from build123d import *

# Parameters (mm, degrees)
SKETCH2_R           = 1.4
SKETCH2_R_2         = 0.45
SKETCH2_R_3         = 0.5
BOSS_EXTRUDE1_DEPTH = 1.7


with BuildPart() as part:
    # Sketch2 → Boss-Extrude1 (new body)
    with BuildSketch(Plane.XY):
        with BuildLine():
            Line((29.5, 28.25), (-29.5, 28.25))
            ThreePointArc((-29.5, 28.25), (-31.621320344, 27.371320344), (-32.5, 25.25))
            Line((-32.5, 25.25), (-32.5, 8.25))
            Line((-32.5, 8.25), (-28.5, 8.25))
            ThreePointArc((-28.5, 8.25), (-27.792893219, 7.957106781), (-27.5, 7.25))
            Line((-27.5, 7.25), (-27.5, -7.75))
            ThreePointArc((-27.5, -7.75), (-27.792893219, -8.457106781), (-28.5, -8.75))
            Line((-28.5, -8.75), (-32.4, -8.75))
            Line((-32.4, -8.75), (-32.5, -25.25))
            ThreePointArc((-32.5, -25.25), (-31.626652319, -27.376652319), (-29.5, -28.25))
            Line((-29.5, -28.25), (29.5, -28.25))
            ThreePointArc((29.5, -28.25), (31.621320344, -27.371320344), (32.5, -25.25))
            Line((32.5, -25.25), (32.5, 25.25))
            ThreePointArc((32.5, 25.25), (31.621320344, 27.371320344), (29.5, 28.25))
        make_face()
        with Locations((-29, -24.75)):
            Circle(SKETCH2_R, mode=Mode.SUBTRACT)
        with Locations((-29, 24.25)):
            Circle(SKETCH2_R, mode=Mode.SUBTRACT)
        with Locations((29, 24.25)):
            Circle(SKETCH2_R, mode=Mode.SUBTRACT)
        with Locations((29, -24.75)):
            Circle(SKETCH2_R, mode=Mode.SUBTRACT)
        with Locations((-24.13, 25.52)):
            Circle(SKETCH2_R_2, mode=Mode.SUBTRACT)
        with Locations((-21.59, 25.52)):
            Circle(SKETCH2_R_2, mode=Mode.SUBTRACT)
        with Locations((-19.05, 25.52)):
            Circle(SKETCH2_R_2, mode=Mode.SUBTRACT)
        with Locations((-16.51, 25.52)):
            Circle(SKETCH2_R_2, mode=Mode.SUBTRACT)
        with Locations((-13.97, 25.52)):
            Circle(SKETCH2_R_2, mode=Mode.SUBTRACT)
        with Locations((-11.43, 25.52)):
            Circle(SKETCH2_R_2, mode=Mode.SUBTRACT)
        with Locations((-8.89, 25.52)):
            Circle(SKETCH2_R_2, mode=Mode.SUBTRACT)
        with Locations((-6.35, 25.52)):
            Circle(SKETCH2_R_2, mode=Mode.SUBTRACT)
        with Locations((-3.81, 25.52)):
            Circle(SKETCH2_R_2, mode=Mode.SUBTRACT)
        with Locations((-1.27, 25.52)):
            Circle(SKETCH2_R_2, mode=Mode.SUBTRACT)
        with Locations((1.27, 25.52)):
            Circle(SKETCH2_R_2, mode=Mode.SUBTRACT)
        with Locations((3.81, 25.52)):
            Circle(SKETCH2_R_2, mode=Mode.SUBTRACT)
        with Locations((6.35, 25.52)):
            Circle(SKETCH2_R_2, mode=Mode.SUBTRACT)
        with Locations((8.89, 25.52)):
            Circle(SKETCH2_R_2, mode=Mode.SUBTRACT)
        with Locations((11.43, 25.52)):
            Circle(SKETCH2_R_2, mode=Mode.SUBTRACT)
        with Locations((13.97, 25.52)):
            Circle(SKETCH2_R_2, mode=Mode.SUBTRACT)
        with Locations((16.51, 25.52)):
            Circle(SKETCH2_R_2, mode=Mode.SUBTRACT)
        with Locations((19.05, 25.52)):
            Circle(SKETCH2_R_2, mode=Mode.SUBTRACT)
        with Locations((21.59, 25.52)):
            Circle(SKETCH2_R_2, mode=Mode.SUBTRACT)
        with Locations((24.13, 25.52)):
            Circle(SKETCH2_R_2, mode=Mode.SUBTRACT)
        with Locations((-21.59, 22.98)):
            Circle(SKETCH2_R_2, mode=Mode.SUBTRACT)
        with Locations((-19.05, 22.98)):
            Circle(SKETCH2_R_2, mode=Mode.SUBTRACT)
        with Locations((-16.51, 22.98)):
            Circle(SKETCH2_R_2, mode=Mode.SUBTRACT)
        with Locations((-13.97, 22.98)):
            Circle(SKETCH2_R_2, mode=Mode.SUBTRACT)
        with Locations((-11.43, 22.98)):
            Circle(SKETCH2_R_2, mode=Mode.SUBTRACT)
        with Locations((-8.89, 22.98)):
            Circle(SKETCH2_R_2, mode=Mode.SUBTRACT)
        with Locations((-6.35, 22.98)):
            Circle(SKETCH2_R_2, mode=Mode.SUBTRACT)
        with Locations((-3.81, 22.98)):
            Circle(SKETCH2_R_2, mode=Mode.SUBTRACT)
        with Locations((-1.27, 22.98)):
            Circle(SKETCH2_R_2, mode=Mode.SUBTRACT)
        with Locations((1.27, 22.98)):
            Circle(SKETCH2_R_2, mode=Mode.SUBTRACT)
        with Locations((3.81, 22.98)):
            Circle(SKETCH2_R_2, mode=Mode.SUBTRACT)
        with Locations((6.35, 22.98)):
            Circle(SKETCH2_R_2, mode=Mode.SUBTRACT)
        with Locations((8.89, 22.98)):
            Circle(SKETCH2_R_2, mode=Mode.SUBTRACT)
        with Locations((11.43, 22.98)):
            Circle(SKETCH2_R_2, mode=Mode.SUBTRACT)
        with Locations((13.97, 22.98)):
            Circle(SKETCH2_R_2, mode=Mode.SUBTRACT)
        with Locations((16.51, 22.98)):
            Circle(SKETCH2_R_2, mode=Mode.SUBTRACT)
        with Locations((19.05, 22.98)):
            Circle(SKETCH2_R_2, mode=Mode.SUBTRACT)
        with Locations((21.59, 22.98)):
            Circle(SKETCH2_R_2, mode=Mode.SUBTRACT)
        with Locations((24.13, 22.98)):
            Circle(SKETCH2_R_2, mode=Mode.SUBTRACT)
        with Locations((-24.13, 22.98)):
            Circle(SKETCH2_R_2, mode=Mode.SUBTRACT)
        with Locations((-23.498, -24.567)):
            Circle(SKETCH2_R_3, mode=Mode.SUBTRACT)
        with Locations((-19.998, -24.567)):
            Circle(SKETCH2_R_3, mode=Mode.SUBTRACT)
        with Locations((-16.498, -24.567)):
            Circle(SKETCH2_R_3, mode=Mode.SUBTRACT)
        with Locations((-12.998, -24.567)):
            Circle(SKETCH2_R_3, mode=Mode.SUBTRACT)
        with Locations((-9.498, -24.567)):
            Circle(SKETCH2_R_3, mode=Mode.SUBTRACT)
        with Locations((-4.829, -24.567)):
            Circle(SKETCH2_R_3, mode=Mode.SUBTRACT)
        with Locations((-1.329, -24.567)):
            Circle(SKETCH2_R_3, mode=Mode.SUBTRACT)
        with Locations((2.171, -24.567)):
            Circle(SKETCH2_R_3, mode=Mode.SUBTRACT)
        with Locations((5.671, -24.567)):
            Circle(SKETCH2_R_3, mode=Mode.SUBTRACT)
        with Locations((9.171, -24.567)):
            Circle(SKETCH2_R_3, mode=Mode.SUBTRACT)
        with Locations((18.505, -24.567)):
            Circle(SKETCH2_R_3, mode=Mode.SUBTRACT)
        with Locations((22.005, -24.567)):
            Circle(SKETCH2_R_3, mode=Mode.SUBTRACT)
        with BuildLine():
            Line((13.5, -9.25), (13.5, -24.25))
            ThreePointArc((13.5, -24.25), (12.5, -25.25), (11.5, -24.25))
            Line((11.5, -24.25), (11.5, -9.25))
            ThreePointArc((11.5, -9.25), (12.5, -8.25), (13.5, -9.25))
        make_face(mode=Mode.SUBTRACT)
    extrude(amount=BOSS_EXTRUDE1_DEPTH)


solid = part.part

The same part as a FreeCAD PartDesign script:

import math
import FreeCAD as App
import Part
import Sketcher
from FreeCAD import Vector
Q = App.Units.Quantity

doc = App.newDocument("Part")
body = doc.addObject("PartDesign::Body", "Body")

sketch1 = doc.addObject("Sketcher::SketchObject", "Sketch")
body.addObject(sketch1)
sketch1.AttachmentSupport = (doc.XY_Plane, [""])
sketch1.MapMode = "FlatFace"
sketch1.addGeometry([
    Part.LineSegment(Vector(29.5, 28.25, 0), Vector(-29.5, 28.25, 0)),
    Part.ArcOfCircle(Part.Circle(Vector(-29.5, 25.25, 0), Vector(0, 0, 1), 3), math.radians(90), math.radians(180)),
    Part.LineSegment(Vector(-32.5, 25.25, 0), Vector(-32.5, 8.25, 0)),
    Part.LineSegment(Vector(-32.5, 8.25, 0), Vector(-28.5, 8.25, 0)),
    Part.ArcOfCircle(Part.Circle(Vector(-28.5, 7.25, 0), Vector(0, 0, 1), 1), math.radians(0), math.radians(90)),
    Part.LineSegment(Vector(-27.5, 7.25, 0), Vector(-27.5, -7.75, 0)),
    Part.ArcOfCircle(Part.Circle(Vector(-28.5, -7.75, 0), Vector(0, 0, 1), 1), math.radians(-90), math.radians(0)),
    Part.LineSegment(Vector(-28.5, -8.75, 0), Vector(-32.4, -8.75, 0)),
    Part.LineSegment(Vector(-32.4, -8.75, 0), Vector(-32.5, -25.25, 0)),
    Part.ArcOfCircle(Part.Circle(Vector(-29.518072, -25.268072, 0), Vector(0, 0, 1), 2.981982), math.radians(179.652757), math.radians(270.347243)),
    Part.LineSegment(Vector(-29.5, -28.25, 0), Vector(29.5, -28.25, 0)),
    Part.ArcOfCircle(Part.Circle(Vector(29.5, -25.25, 0), Vector(0, 0, 1), 3), math.radians(-90), math.radians(0)),
    Part.LineSegment(Vector(32.5, -25.25, 0), Vector(32.5, 25.25, 0)),
    Part.ArcOfCircle(Part.Circle(Vector(29.5, 25.25, 0), Vector(0, 0, 1), 3), math.radians(0), math.radians(90)),
    Part.Circle(Vector(-29, -24.75, 0), Vector(0, 0, 1), 1.4),
    Part.Circle(Vector(-23.498, -24.567, 0), Vector(0, 0, 1), 0.5),
    Part.Circle(Vector(-19.998, -24.567, 0), Vector(0, 0, 1), 0.5),
    Part.Circle(Vector(-16.498, -24.567, 0), Vector(0, 0, 1), 0.5),
    Part.Circle(Vector(-12.998, -24.567, 0), Vector(0, 0, 1), 0.5),
    Part.Circle(Vector(-9.498, -24.567, 0), Vector(0, 0, 1), 0.5),
    Part.Circle(Vector(-4.829, -24.567, 0), Vector(0, 0, 1), 0.5),
    Part.Circle(Vector(-1.329, -24.567, 0), Vector(0, 0, 1), 0.5),
    Part.Circle(Vector(2.171, -24.567, 0), Vector(0, 0, 1), 0.5),
    Part.Circle(Vector(5.671, -24.567, 0), Vector(0, 0, 1), 0.5),
    Part.Circle(Vector(9.171, -24.567, 0), Vector(0, 0, 1), 0.5),
    Part.ArcOfCircle(Part.Circle(Vector(12.5, -9.25, 0), Vector(0, 0, 1), 1), math.radians(0), math.radians(180)),
    Part.LineSegment(Vector(13.5, -9.25, 0), Vector(13.5, -24.25, 0)),
    Part.ArcOfCircle(Part.Circle(Vector(12.5, -24.25, 0), Vector(0, 0, 1), 1), math.radians(180), math.radians(360)),
    Part.LineSegment(Vector(11.5, -24.25, 0), Vector(11.5, -9.25, 0)),
    Part.Circle(Vector(18.505, -24.567, 0), Vector(0, 0, 1), 0.5),
    Part.Circle(Vector(22.005, -24.567, 0), Vector(0, 0, 1), 0.5),
    Part.Circle(Vector(29, -24.75, 0), Vector(0, 0, 1), 1.4),
    Part.Circle(Vector(-29, 24.25, 0), Vector(0, 0, 1), 1.4),
    Part.Circle(Vector(-24.13, 22.98, 0), Vector(0, 0, 1), 0.45),
    Part.Circle(Vector(-24.13, 25.52, 0), Vector(0, 0, 1), 0.45),
    Part.Circle(Vector(-21.59, 22.98, 0), Vector(0, 0, 1), 0.45),
    Part.Circle(Vector(-19.05, 22.98, 0), Vector(0, 0, 1), 0.45),
    Part.Circle(Vector(-21.59, 25.52, 0), Vector(0, 0, 1), 0.45),
    Part.Circle(Vector(-19.05, 25.52, 0), Vector(0, 0, 1), 0.45),
    Part.Circle(Vector(-16.51, 22.98, 0), Vector(0, 0, 1), 0.45),
    Part.Circle(Vector(-16.51, 25.52, 0), Vector(0, 0, 1), 0.45),
    Part.Circle(Vector(-13.97, 22.98, 0), Vector(0, 0, 1), 0.45),
    Part.Circle(Vector(-11.43, 22.98, 0), Vector(0, 0, 1), 0.45),
    Part.Circle(Vector(-13.97, 25.52, 0), Vector(0, 0, 1), 0.45),
    Part.Circle(Vector(-11.43, 25.52, 0), Vector(0, 0, 1), 0.45),
    Part.Circle(Vector(-8.89, 22.98, 0), Vector(0, 0, 1), 0.45),
    Part.Circle(Vector(-8.89, 25.52, 0), Vector(0, 0, 1), 0.45),
    Part.Circle(Vector(-6.35, 22.98, 0), Vector(0, 0, 1), 0.45),
    Part.Circle(Vector(-3.81, 22.98, 0), Vector(0, 0, 1), 0.45),
    Part.Circle(Vector(-6.35, 25.52, 0), Vector(0, 0, 1), 0.45),
    Part.Circle(Vector(-3.81, 25.52, 0), Vector(0, 0, 1), 0.45),
    Part.Circle(Vector(-1.27, 22.98, 0), Vector(0, 0, 1), 0.45),
    Part.Circle(Vector(-1.27, 25.52, 0), Vector(0, 0, 1), 0.45),
    Part.Circle(Vector(1.27, 22.98, 0), Vector(0, 0, 1), 0.45),
    Part.Circle(Vector(1.27, 25.52, 0), Vector(0, 0, 1), 0.45),
    Part.Circle(Vector(3.81, 22.98, 0), Vector(0, 0, 1), 0.45),
    Part.Circle(Vector(6.35, 22.98, 0), Vector(0, 0, 1), 0.45),
    Part.Circle(Vector(3.81, 25.52, 0), Vector(0, 0, 1), 0.45),
    Part.Circle(Vector(6.35, 25.52, 0), Vector(0, 0, 1), 0.45),
    Part.Circle(Vector(8.89, 22.98, 0), Vector(0, 0, 1), 0.45),
    Part.Circle(Vector(8.89, 25.52, 0), Vector(0, 0, 1), 0.45),
    Part.Circle(Vector(11.43, 22.98, 0), Vector(0, 0, 1), 0.45),
    Part.Circle(Vector(13.97, 22.98, 0), Vector(0, 0, 1), 0.45),
    Part.Circle(Vector(11.43, 25.52, 0), Vector(0, 0, 1), 0.45),
    Part.Circle(Vector(13.97, 25.52, 0), Vector(0, 0, 1), 0.45),
    Part.Circle(Vector(16.51, 22.98, 0), Vector(0, 0, 1), 0.45),
    Part.Circle(Vector(16.51, 25.52, 0), Vector(0, 0, 1), 0.45),
    Part.Circle(Vector(19.05, 22.98, 0), Vector(0, 0, 1), 0.45),
    Part.Circle(Vector(21.59, 22.98, 0), Vector(0, 0, 1), 0.45),
    Part.Circle(Vector(19.05, 25.52, 0), Vector(0, 0, 1), 0.45),
    Part.Circle(Vector(21.59, 25.52, 0), Vector(0, 0, 1), 0.45),
    Part.Circle(Vector(24.13, 22.98, 0), Vector(0, 0, 1), 0.45),
    Part.Circle(Vector(24.13, 25.52, 0), Vector(0, 0, 1), 0.45),
    Part.Circle(Vector(29, 24.25, 0), Vector(0, 0, 1), 1.4),
], False)
sketch1.addConstraint([
    Sketcher.Constraint("Tangent", 0, 2, 1, 1),
    Sketcher.Constraint("Tangent", 1, 2, 2, 1),
    Sketcher.Constraint("Coincident", 2, 2, 3, 1),
    Sketcher.Constraint("Tangent", 3, 2, 4, 2),
    Sketcher.Constraint("Tangent", 4, 1, 5, 1),
    Sketcher.Constraint("Tangent", 5, 2, 6, 2),
    Sketcher.Constraint("Tangent", 6, 1, 7, 1),
    Sketcher.Constraint("Coincident", 7, 2, 8, 1),
    Sketcher.Constraint("Tangent", 8, 2, 9, 1),
    Sketcher.Constraint("Coincident", 9, 2, 10, 1),
    Sketcher.Constraint("Tangent", 10, 2, 11, 1),
    Sketcher.Constraint("Tangent", 11, 2, 12, 1),
    Sketcher.Constraint("Tangent", 12, 2, 13, 1),
    Sketcher.Constraint("Tangent", 13, 2, 0, 1),
    Sketcher.Constraint("Tangent", 25, 1, 26, 1),
    Sketcher.Constraint("Tangent", 26, 2, 27, 2),
    Sketcher.Constraint("Tangent", 27, 1, 28, 1),
    Sketcher.Constraint("Tangent", 28, 2, 25, 2),
    Sketcher.Constraint("Horizontal", 0),
    Sketcher.Constraint("Vertical", 2),
    Sketcher.Constraint("Horizontal", 3),
    Sketcher.Constraint("Vertical", 5),
    Sketcher.Constraint("Horizontal", 7),
    Sketcher.Constraint("Horizontal", 10),
    Sketcher.Constraint("Vertical", 12),
    Sketcher.Constraint("Vertical", 26),
    Sketcher.Constraint("Vertical", 28),
    Sketcher.Constraint("Equal", 4, 6),
    Sketcher.Constraint("Equal", 1, 11),
    Sketcher.Constraint("Equal", 11, 13),
    Sketcher.Constraint("Equal", 15, 16),
    Sketcher.Constraint("Equal", 16, 17),
    Sketcher.Constraint("Equal", 17, 18),
    Sketcher.Constraint("Equal", 18, 19),
    Sketcher.Constraint("Equal", 19, 20),
    Sketcher.Constraint("Equal", 20, 21),
    Sketcher.Constraint("Equal", 21, 22),
    Sketcher.Constraint("Equal", 22, 23),
    Sketcher.Constraint("Equal", 23, 24),
    Sketcher.Constraint("Equal", 6, 25),
    Sketcher.Constraint("Equal", 24, 29),
    Sketcher.Constraint("Equal", 29, 30),
    Sketcher.Constraint("Equal", 14, 31),
    Sketcher.Constraint("Equal", 31, 32),
    Sketcher.Constraint("Equal", 33, 34),
    Sketcher.Constraint("Equal", 34, 35),
    Sketcher.Constraint("Equal", 35, 36),
    Sketcher.Constraint("Equal", 36, 37),
    Sketcher.Constraint("Equal", 37, 38),
    Sketcher.Constraint("Equal", 38, 39),
    Sketcher.Constraint("Equal", 39, 40),
    Sketcher.Constraint("Equal", 40, 41),
    Sketcher.Constraint("Equal", 41, 42),
    Sketcher.Constraint("Equal", 42, 43),
    Sketcher.Constraint("Equal", 43, 44),
    Sketcher.Constraint("Equal", 44, 45),
    Sketcher.Constraint("Equal", 45, 46),
    Sketcher.Constraint("Equal", 46, 47),
    Sketcher.Constraint("Equal", 47, 48),
    Sketcher.Constraint("Equal", 48, 49),
    Sketcher.Constraint("Equal", 49, 50),
    Sketcher.Constraint("Equal", 50, 51),
    Sketcher.Constraint("Equal", 51, 52),
    Sketcher.Constraint("Equal", 52, 53),
    Sketcher.Constraint("Equal", 53, 54),
    Sketcher.Constraint("Equal", 54, 55),
    Sketcher.Constraint("Equal", 55, 56),
    Sketcher.Constraint("Equal", 56, 57),
    Sketcher.Constraint("Equal", 57, 58),
    Sketcher.Constraint("Equal", 58, 59),
    Sketcher.Constraint("Equal", 59, 60),
    Sketcher.Constraint("Equal", 60, 61),
    Sketcher.Constraint("Equal", 61, 62),
    Sketcher.Constraint("Equal", 62, 63),
    Sketcher.Constraint("Equal", 63, 64),
    Sketcher.Constraint("Equal", 64, 65),
    Sketcher.Constraint("Equal", 65, 66),
    Sketcher.Constraint("Equal", 66, 67),
    Sketcher.Constraint("Equal", 67, 68),
    Sketcher.Constraint("Equal", 68, 69),
    Sketcher.Constraint("Equal", 69, 70),
    Sketcher.Constraint("Equal", 70, 71),
    Sketcher.Constraint("Equal", 71, 72),
    Sketcher.Constraint("Equal", 32, 73),
    Sketcher.Constraint("Symmetric", 1, 3, 11, 3, -1, 1),
    Sketcher.Constraint("Symmetric", 8, 2, 12, 2, -1, 1),
    Sketcher.Constraint("Symmetric", 14, 3, 31, 3, -2),
    Sketcher.Constraint("Symmetric", 51, 3, 53, 3, -2),
    Sketcher.Constraint("Symmetric", 52, 3, 54, 3, -2),
    Sketcher.Constraint("Symmetric", 48, 3, 55, 3, -2),
    Sketcher.Constraint("Symmetric", 47, 3, 56, 3, -2),
    Sketcher.Constraint("Symmetric", 50, 3, 57, 3, -2),
    Sketcher.Constraint("Symmetric", 49, 3, 58, 3, -2),
    Sketcher.Constraint("Symmetric", 45, 3, 59, 3, -2),
    Sketcher.Constraint("Symmetric", 46, 3, 60, 3, -2),
    Sketcher.Constraint("Symmetric", 42, 3, 61, 3, -2),
    Sketcher.Constraint("Symmetric", 41, 3, 62, 3, -2),
    Sketcher.Constraint("Symmetric", 44, 3, 63, 3, -2),
    Sketcher.Constraint("Symmetric", 43, 3, 64, 3, -2),
    Sketcher.Constraint("Symmetric", 39, 3, 65, 3, -2),
    Sketcher.Constraint("Symmetric", 40, 3, 66, 3, -2),
    Sketcher.Constraint("Symmetric", 36, 3, 67, 3, -2),
    Sketcher.Constraint("Symmetric", 35, 3, 68, 3, -2),
    Sketcher.Constraint("Symmetric", 38, 3, 69, 3, -2),
    Sketcher.Constraint("Symmetric", 37, 3, 70, 3, -2),
    Sketcher.Constraint("Symmetric", 33, 3, 71, 3, -2),
    Sketcher.Constraint("Symmetric", 34, 3, 72, 3, -2),
    Sketcher.Constraint("Symmetric", 32, 3, 73, 3, -2),
    Sketcher.Constraint("Horizontal", 15, 3, 16, 3),
    Sketcher.Constraint("Horizontal", 16, 3, 17, 3),
    Sketcher.Constraint("Horizontal", 17, 3, 18, 3),
    Sketcher.Constraint("Horizontal", 18, 3, 19, 3),
    Sketcher.Constraint("Horizontal", 19, 3, 20, 3),
    Sketcher.Constraint("Horizontal", 20, 3, 21, 3),
    Sketcher.Constraint("Horizontal", 21, 3, 22, 3),
    Sketcher.Constraint("Horizontal", 22, 3, 23, 3),
    Sketcher.Constraint("Horizontal", 23, 3, 24, 3),
    Sketcher.Constraint("Horizontal", 24, 3, 29, 3),
    Sketcher.Constraint("Horizontal", 29, 3, 30, 3),
    Sketcher.Constraint("Horizontal", 33, 3, 35, 3),
    Sketcher.Constraint("Horizontal", 35, 3, 36, 3),
    Sketcher.Constraint("Horizontal", 34, 3, 37, 3),
    Sketcher.Constraint("Horizontal", 37, 3, 38, 3),
    Sketcher.Constraint("Horizontal", 36, 3, 39, 3),
    Sketcher.Constraint("Horizontal", 38, 3, 40, 3),
    Sketcher.Constraint("Horizontal", 39, 3, 41, 3),
    Sketcher.Constraint("Horizontal", 41, 3, 42, 3),
    Sketcher.Constraint("Horizontal", 40, 3, 43, 3),
    Sketcher.Constraint("Horizontal", 43, 3, 44, 3),
    Sketcher.Constraint("Horizontal", 42, 3, 45, 3),
    Sketcher.Constraint("Horizontal", 44, 3, 46, 3),
    Sketcher.Constraint("Horizontal", 45, 3, 47, 3),
    Sketcher.Constraint("Horizontal", 47, 3, 48, 3),
    Sketcher.Constraint("Horizontal", 46, 3, 49, 3),
    Sketcher.Constraint("Horizontal", 49, 3, 50, 3),
    Sketcher.Constraint("Horizontal", 48, 3, 51, 3),
    Sketcher.Constraint("Horizontal", 50, 3, 52, 3),
    Sketcher.Constraint("Vertical", 14, 3, 32, 3),
    Sketcher.Constraint("Vertical", 33, 3, 34, 3),
    Sketcher.Constraint("Vertical", 35, 3, 37, 3),
    Sketcher.Constraint("Vertical", 36, 3, 38, 3),
    Sketcher.Constraint("Vertical", 39, 3, 40, 3),
    Sketcher.Constraint("Vertical", 41, 3, 43, 3),
    Sketcher.Constraint("Vertical", 42, 3, 44, 3),
    Sketcher.Constraint("Vertical", 45, 3, 46, 3),
    Sketcher.Constraint("Vertical", 47, 3, 49, 3),
    Sketcher.Constraint("Vertical", 48, 3, 50, 3),
    Sketcher.Constraint("Vertical", 51, 3, 52, 3),
    Sketcher.Constraint("Vertical", 0, 2, 9, 2),
    Sketcher.Constraint("Equal", 5, 26),
    Sketcher.Constraint("Diameter", 15, Q("1 mm")),
    Sketcher.Constraint("Radius", 1, Q("3 mm")),
    Sketcher.Constraint("Radius", 4, Q("1 mm")),
    Sketcher.Constraint("Diameter", 14, Q("2.8 mm")),
    Sketcher.Constraint("Diameter", 33, Q("0.9 mm")),
    Sketcher.Constraint("DistanceX", 0, 2, 0, 1, Q("59 mm")),
    Sketcher.Constraint("DistanceX", 3, 1, 3, 2, Q("4 mm")),
    Sketcher.Constraint("DistanceY", 2, 2, 2, 1, Q("17 mm")),
    Sketcher.Constraint("DistanceY", 5, 2, 5, 1, Q("15 mm")),
    Sketcher.Constraint("DistanceX", 7, 2, 7, 1, Q("3.9 mm")),
    Sketcher.Constraint("DistanceY", 12, 1, 12, 2, Q("50.5 mm")),
    Sketcher.Constraint("DistanceX", 14, 3, -1, 1, Q("29 mm")),
    Sketcher.Constraint("DistanceX", -1, 1, 25, 3, Q("12.5 mm")),
    Sketcher.Constraint("DistanceY", 14, 3, -1, 1, Q("24.75 mm")),
    Sketcher.Constraint("DistanceY", 25, 3, -1, 1, Q("9.25 mm")),
    Sketcher.Constraint("DistanceY", -1, 1, 32, 3, Q("24.25 mm")),
    Sketcher.Constraint("DistanceX", 33, 3, -1, 1, Q("24.13 mm")),
    Sketcher.Constraint("DistanceY", -1, 1, 33, 3, Q("22.98 mm")),
    Sketcher.Constraint("DistanceY", -1, 1, 34, 3, Q("25.52 mm")),
    Sketcher.Constraint("DistanceX", 35, 3, -1, 1, Q("21.59 mm")),
    Sketcher.Constraint("DistanceX", 36, 3, -1, 1, Q("19.05 mm")),
    Sketcher.Constraint("DistanceX", 39, 3, -1, 1, Q("16.51 mm")),
    Sketcher.Constraint("DistanceX", 41, 3, -1, 1, Q("13.97 mm")),
    Sketcher.Constraint("DistanceX", 42, 3, -1, 1, Q("11.43 mm")),
    Sketcher.Constraint("DistanceX", 45, 3, -1, 1, Q("8.89 mm")),
    Sketcher.Constraint("DistanceX", 47, 3, -1, 1, Q("6.35 mm")),
    Sketcher.Constraint("DistanceX", 48, 3, -1, 1, Q("3.81 mm")),
    Sketcher.Constraint("DistanceX", 51, 3, -1, 1, Q("1.27 mm")),
    Sketcher.Constraint("DistanceX", 15, 3, -1, 1, Q("23.498 mm")),
    Sketcher.Constraint("DistanceY", 15, 3, -1, 1, Q("24.567 mm")),
    Sketcher.Constraint("DistanceX", 16, 3, -1, 1, Q("19.998 mm")),
    Sketcher.Constraint("DistanceX", 17, 3, -1, 1, Q("16.498 mm")),
    Sketcher.Constraint("DistanceX", 18, 3, -1, 1, Q("12.998 mm")),
    Sketcher.Constraint("DistanceX", 19, 3, -1, 1, Q("9.498 mm")),
    Sketcher.Constraint("DistanceX", 20, 3, -1, 1, Q("4.829 mm")),
    Sketcher.Constraint("DistanceX", 21, 3, -1, 1, Q("1.329 mm")),
    Sketcher.Constraint("DistanceX", -1, 1, 22, 3, Q("2.171 mm")),
    Sketcher.Constraint("DistanceX", -1, 1, 23, 3, Q("5.671 mm")),
    Sketcher.Constraint("DistanceX", -1, 1, 24, 3, Q("9.171 mm")),
    Sketcher.Constraint("DistanceX", -1, 1, 29, 3, Q("18.505 mm")),
    Sketcher.Constraint("DistanceX", -1, 1, 30, 3, Q("22.005 mm")),
])
pad1 = doc.addObject("PartDesign::Pad", "Pad")
body.addObject(pad1)
pad1.Profile = sketch1
pad1.Length = 1.7

doc.recompute()
